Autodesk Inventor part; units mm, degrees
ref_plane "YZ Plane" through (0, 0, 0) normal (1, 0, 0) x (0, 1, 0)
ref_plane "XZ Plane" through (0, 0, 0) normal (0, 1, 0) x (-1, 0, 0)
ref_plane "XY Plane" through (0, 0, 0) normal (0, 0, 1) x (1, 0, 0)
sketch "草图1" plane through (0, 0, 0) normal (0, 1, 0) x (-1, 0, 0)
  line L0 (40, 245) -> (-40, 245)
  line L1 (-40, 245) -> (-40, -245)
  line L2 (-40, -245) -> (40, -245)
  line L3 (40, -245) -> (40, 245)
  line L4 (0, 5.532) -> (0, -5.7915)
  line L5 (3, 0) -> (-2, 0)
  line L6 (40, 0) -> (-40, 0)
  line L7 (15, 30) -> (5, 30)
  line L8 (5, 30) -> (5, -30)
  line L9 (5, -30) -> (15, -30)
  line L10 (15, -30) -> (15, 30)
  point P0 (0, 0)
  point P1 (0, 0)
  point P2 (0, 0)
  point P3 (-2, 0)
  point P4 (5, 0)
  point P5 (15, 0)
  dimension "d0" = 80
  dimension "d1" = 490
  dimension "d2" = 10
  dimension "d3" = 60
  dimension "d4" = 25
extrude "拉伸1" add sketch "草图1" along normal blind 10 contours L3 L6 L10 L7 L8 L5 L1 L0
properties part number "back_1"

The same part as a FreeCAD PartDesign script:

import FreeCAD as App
import Part
import Sketcher

doc = App.newDocument("Part")
body = doc.addObject("PartDesign::Body", "Body")

# Sketch on XZ plane
sketch1 = body.newObject("Sketcher::SketchObject", "Sketch")
sketch1.AttachmentSupport = (doc.getObject("XZ_Plane"), [""])
sketch1.MapMode = "FlatFace"
sketch1.addGeometry([
    Part.LineSegment(App.Vector(-40, 0, 0), App.Vector(-40, 245, 0)),  # 0
    Part.LineSegment(App.Vector(-40, 245, 0), App.Vector(40, 245, 0)),  # 1
    Part.LineSegment(App.Vector(40, 245, 0), App.Vector(40, 0, 0)),  # 2
    Part.LineSegment(App.Vector(40, 0, 0), App.Vector(-5, 0, 0)),  # 3
    Part.LineSegment(App.Vector(-5, 0, 0), App.Vector(-5, 30, 0)),  # 4
    Part.LineSegment(App.Vector(-5, 30, 0), App.Vector(-15, 30, 0)),  # 5
    Part.LineSegment(App.Vector(-15, 30, 0), App.Vector(-15, 0, 0)),  # 6
    Part.LineSegment(App.Vector(-15, 0, 0), App.Vector(-40, 0, 0)),  # 7
], False)
sketch1.addConstraint([
    Sketcher.Constraint("Coincident", 0, 2, 1, 1),
    Sketcher.Constraint("Coincident", 1, 2, 2, 1),
    Sketcher.Constraint("Coincident", 2, 2, 3, 1),
    Sketcher.Constraint("Coincident", 3, 2, 4, 1),
    Sketcher.Constraint("Coincident", 4, 2, 5, 1),
    Sketcher.Constraint("Coincident", 5, 2, 6, 1),
    Sketcher.Constraint("Coincident", 6, 2, 7, 1),
    Sketcher.Constraint("Coincident", 7, 2, 0, 1),
    Sketcher.Constraint("Vertical", 0),
    Sketcher.Constraint("Horizontal", 1),
    Sketcher.Constraint("Vertical", 2),
    Sketcher.Constraint("Horizontal", 3),
    Sketcher.Constraint("Vertical", 4),
    Sketcher.Constraint("Horizontal", 5),
    Sketcher.Constraint("Vertical", 6),
    Sketcher.Constraint("Horizontal", 7),
    Sketcher.Constraint("Symmetric", 2, 2, 7, 2, -1, 1),
    Sketcher.Constraint("PointOnObject", 2, 2, -1),
    Sketcher.Constraint("DistanceX", 1, 1, 1, 2, 80.0),
    Sketcher.Constraint("DistanceX", 5, 2, 5, 1, 10.0),
    Sketcher.Constraint("DistanceX", 7, 2, 7, 1, 25.0),
    Sketcher.Constraint("DistanceY", 0, 1, 0, 2, 245.0),
    Sketcher.Constraint("DistanceY", 4, 1, 4, 2, 30.0),
])
pad1 = body.newObject("PartDesign::Pad", "Pad")
pad1.Profile = sketch1
pad1.Length = 10
pad1.Reversed = True

doc.recompute()
